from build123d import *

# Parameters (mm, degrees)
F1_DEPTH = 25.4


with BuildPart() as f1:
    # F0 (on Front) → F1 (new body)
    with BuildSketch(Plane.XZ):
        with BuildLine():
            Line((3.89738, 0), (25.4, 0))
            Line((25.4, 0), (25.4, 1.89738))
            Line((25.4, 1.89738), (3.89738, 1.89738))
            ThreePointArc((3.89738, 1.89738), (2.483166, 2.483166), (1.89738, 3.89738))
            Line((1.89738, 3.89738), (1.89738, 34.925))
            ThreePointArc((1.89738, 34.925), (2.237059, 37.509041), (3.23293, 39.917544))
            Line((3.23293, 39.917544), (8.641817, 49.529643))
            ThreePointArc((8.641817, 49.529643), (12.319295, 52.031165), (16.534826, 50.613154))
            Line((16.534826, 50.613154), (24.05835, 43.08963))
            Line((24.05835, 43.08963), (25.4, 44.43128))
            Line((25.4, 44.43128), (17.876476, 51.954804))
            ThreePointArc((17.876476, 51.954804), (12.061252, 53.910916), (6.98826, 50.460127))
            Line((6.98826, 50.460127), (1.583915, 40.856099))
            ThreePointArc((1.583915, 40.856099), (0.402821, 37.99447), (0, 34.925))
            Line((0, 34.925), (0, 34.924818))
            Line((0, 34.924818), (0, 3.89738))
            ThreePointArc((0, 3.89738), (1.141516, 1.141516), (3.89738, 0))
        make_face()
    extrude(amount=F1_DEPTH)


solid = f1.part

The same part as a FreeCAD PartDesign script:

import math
import FreeCAD as App
import Part
import Sketcher
Q = App.Units.Quantity

doc = App.newDocument("Part")
params = doc.addObject("Spreadsheet::Sheet", "Params")
for row, (alias, value) in enumerate([
    ("sketch1_radius", "1.999999 mm"),
    ("sketch1_radius2", "5 mm"),
    ("pad1_length", "25.4 mm"),
], start=1):
    params.set(f"A{row}", alias)
    params.set(f"B{row}", "=" + value)
    params.setAlias(f"B{row}", alias)

body = doc.addObject("PartDesign::Body", "Body")

# Sketch on XZ plane
sketch1 = body.newObject("Sketcher::SketchObject", "Sketch")
sketch1.AttachmentSupport = (doc.getObject("XZ_Plane"), [""])
sketch1.MapMode = "FlatFace"
sketch1.addGeometry(Part.LineSegment(App.Vector(3.9, 0, 0), App.Vector(25.4, 0, 0)), False)
sketch1.addGeometry(Part.LineSegment(App.Vector(25.4, 0, 0), App.Vector(25.4, 1.9, 0)), False)
sketch1.addGeometry(Part.LineSegment(App.Vector(25.4, 1.9, 0), App.Vector(3.9, 1.9, 0)), False)
sketch1.addGeometry(Part.ArcOfCircle(Part.Circle(App.Vector(3.9, 3.9, 0), App.Vector(0, 0, 1), 2), math.radians(180), math.radians(270)), False)
sketch1.addGeometry(Part.LineSegment(App.Vector(1.9, 3.9, 0), App.Vector(1.9, 34.9, 0)), False)
sketch1.addGeometry(Part.ArcOfCircle(Part.Circle(App.Vector(11.9, 34.9, 0), App.Vector(0, 0, 1), 10), math.radians(150), math.radians(180)), False)
sketch1.addGeometry(Part.LineSegment(App.Vector(3.2, 39.9, 0), App.Vector(8.6, 49.5, 0)), False)
sketch1.addGeometry(Part.ArcOfCircle(Part.Circle(App.Vector(13, 47.1, 0), App.Vector(0, 0, 1), 5), math.radians(45), math.radians(151)), False)
sketch1.addGeometry(Part.LineSegment(App.Vector(16.5, 50.6, 0), App.Vector(24.1, 43.1, 0)), False)
sketch1.addGeometry(Part.LineSegment(App.Vector(24.1, 43.1, 0), App.Vector(25.4, 44.4, 0)), False)
sketch1.addGeometry(Part.LineSegment(App.Vector(25.4, 44.4, 0), App.Vector(17.9, 52, 0)), False)
sketch1.addGeometry(Part.ArcOfCircle(Part.Circle(App.Vector(13, 47.1, 0), App.Vector(0, 0, 1), 6.9), math.radians(45), math.radians(151)), False)
sketch1.addGeometry(Part.LineSegment(App.Vector(7, 50.5, 0), App.Vector(1.6, 40.9, 0)), False)
sketch1.addGeometry(Part.ArcOfCircle(Part.Circle(App.Vector(11.9, 34.9, 0), App.Vector(0, 0, 1), 11.9), math.radians(150), math.radians(180)), False)
sketch1.addGeometry(Part.LineSegment(App.Vector(0, 34.9, 0), App.Vector(0, 3.9, 0)), False)
sketch1.addGeometry(Part.ArcOfCircle(Part.Circle(App.Vector(3.9, 3.9, 0), App.Vector(0, 0, 1), 3.9), math.radians(180), math.radians(270)), False)
sketch1.addConstraint(Sketcher.Constraint("Coincident", 0, 2, 1, 1))
sketch1.addConstraint(Sketcher.Constraint("Coincident", 1, 2, 2, 1))
sketch1.addConstraint(Sketcher.Constraint("Tangent", 2, 2, 3, 2))
sketch1.addConstraint(Sketcher.Constraint("Tangent", 3, 1, 4, 1))
sketch1.addConstraint(Sketcher.Constraint("Coincident", 4, 2, 5, 2))
sketch1.addConstraint(Sketcher.Constraint("Coincident", 5, 1, 6, 1))
sketch1.addConstraint(Sketcher.Constraint("Tangent", 6, 2, 7, 2))
sketch1.addConstraint(Sketcher.Constraint("Tangent", 7, 1, 8, 1))
sketch1.addConstraint(Sketcher.Constraint("Coincident", 8, 2, 9, 1))
sketch1.addConstraint(Sketcher.Constraint("Coincident", 9, 2, 10, 1))
sketch1.addConstraint(Sketcher.Constraint("Tangent", 10, 2, 11, 1))
sketch1.addConstraint(Sketcher.Constraint("Tangent", 11, 2, 12, 1))
sketch1.addConstraint(Sketcher.Constraint("Coincident", 12, 2, 13, 1))
sketch1.addConstraint(Sketcher.Constraint("Coincident", 13, 2, 14, 1))
sketch1.addConstraint(Sketcher.Constraint("Tangent", 14, 2, 15, 1))
sketch1.addConstraint(Sketcher.Constraint("Tangent", 15, 2, 0, 1))
sketch1.addConstraint(Sketcher.Constraint("Horizontal", 0))
sketch1.addConstraint(Sketcher.Constraint("Vertical", 1))
sketch1.addConstraint(Sketcher.Constraint("Horizontal", 2))
sketch1.addConstraint(Sketcher.Constraint("Vertical", 4))
sketch1.addConstraint(Sketcher.Constraint("Vertical", 14))
sketch1.addConstraint(Sketcher.Constraint("Coincident", 11, 3, 7, 3))
sketch1.addConstraint(Sketcher.Constraint("Coincident", 15, 3, 3, 3))
sketch1.addConstraint(Sketcher.Constraint("PointOnObject", 0, 2, -1))
sketch1.addConstraint(Sketcher.Constraint("PointOnObject", 13, 2, -2))
sketch1.addConstraint(Sketcher.Constraint("Perpendicular", 8, 9))
sketch1.addConstraint(Sketcher.Constraint("Perpendicular", 9, 10))
sketch1.addConstraint(Sketcher.Constraint("Parallel", 6, 12))
sketch1.addConstraint(Sketcher.Constraint("Horizontal", 4, 2, 13, 2))
sketch1.addConstraint(Sketcher.Constraint("Vertical", 1, 2, 9, 2))
sketch1.addConstraint(Sketcher.Constraint("Radius", 3, Q("1.999999 mm")))
sketch1.addConstraint(Sketcher.Constraint("Radius", 7, Q("5 mm")))
sketch1.addConstraint(Sketcher.Constraint("Angle", 8, Q("-45 deg")))
sketch1.addConstraint(Sketcher.Constraint("DistanceX", -1, 1, 0, 2, Q("25.4 mm")))
sketch1.addConstraint(Sketcher.Constraint("Radius", 5, Q("9.99999 mm")))
sketch1.addConstraint(Sketcher.Constraint("Radius", 11, Q("6.89738 mm")))
sketch1.addConstraint(Sketcher.Constraint("Radius", 15, Q("3.897379 mm")))
sketch1.addConstraint(Sketcher.Constraint("DistanceY", -1, 1, 4, 2, Q("34.925 mm")))
sketch1.addConstraint(Sketcher.Constraint("Radius", 13, Q("11.897383 mm")))
sketch1.addConstraint(Sketcher.Constraint("DistanceY", -1, 1, 12, 2, Q("40.856099 mm")))
sketch1.addConstraint(Sketcher.Constraint("DistanceY", 5, 3, 7, 3, Q("12.152799 mm")))
sketch1.addConstraint(Sketcher.Constraint("DistanceY", 5, 1, 6, 2, Q("9.612099 mm")))
sketch1.addConstraint(Sketcher.Constraint("DistanceX", 12, 2, 6, 2, Q("7.057902 mm")))
sketch1.addConstraint(Sketcher.Constraint("Distance", 6, Q("11.029438 mm")))
sketch1.setExpression("Constraints[30]", "Params.sketch1_radius")
sketch1.setExpression("Constraints[31]", "Params.sketch1_radius2")
pad1 = body.newObject("PartDesign::Pad", "Pad")
pad1.Profile = sketch1
pad1.setExpression("Length", "Params.pad1_length")

doc.recompute()
